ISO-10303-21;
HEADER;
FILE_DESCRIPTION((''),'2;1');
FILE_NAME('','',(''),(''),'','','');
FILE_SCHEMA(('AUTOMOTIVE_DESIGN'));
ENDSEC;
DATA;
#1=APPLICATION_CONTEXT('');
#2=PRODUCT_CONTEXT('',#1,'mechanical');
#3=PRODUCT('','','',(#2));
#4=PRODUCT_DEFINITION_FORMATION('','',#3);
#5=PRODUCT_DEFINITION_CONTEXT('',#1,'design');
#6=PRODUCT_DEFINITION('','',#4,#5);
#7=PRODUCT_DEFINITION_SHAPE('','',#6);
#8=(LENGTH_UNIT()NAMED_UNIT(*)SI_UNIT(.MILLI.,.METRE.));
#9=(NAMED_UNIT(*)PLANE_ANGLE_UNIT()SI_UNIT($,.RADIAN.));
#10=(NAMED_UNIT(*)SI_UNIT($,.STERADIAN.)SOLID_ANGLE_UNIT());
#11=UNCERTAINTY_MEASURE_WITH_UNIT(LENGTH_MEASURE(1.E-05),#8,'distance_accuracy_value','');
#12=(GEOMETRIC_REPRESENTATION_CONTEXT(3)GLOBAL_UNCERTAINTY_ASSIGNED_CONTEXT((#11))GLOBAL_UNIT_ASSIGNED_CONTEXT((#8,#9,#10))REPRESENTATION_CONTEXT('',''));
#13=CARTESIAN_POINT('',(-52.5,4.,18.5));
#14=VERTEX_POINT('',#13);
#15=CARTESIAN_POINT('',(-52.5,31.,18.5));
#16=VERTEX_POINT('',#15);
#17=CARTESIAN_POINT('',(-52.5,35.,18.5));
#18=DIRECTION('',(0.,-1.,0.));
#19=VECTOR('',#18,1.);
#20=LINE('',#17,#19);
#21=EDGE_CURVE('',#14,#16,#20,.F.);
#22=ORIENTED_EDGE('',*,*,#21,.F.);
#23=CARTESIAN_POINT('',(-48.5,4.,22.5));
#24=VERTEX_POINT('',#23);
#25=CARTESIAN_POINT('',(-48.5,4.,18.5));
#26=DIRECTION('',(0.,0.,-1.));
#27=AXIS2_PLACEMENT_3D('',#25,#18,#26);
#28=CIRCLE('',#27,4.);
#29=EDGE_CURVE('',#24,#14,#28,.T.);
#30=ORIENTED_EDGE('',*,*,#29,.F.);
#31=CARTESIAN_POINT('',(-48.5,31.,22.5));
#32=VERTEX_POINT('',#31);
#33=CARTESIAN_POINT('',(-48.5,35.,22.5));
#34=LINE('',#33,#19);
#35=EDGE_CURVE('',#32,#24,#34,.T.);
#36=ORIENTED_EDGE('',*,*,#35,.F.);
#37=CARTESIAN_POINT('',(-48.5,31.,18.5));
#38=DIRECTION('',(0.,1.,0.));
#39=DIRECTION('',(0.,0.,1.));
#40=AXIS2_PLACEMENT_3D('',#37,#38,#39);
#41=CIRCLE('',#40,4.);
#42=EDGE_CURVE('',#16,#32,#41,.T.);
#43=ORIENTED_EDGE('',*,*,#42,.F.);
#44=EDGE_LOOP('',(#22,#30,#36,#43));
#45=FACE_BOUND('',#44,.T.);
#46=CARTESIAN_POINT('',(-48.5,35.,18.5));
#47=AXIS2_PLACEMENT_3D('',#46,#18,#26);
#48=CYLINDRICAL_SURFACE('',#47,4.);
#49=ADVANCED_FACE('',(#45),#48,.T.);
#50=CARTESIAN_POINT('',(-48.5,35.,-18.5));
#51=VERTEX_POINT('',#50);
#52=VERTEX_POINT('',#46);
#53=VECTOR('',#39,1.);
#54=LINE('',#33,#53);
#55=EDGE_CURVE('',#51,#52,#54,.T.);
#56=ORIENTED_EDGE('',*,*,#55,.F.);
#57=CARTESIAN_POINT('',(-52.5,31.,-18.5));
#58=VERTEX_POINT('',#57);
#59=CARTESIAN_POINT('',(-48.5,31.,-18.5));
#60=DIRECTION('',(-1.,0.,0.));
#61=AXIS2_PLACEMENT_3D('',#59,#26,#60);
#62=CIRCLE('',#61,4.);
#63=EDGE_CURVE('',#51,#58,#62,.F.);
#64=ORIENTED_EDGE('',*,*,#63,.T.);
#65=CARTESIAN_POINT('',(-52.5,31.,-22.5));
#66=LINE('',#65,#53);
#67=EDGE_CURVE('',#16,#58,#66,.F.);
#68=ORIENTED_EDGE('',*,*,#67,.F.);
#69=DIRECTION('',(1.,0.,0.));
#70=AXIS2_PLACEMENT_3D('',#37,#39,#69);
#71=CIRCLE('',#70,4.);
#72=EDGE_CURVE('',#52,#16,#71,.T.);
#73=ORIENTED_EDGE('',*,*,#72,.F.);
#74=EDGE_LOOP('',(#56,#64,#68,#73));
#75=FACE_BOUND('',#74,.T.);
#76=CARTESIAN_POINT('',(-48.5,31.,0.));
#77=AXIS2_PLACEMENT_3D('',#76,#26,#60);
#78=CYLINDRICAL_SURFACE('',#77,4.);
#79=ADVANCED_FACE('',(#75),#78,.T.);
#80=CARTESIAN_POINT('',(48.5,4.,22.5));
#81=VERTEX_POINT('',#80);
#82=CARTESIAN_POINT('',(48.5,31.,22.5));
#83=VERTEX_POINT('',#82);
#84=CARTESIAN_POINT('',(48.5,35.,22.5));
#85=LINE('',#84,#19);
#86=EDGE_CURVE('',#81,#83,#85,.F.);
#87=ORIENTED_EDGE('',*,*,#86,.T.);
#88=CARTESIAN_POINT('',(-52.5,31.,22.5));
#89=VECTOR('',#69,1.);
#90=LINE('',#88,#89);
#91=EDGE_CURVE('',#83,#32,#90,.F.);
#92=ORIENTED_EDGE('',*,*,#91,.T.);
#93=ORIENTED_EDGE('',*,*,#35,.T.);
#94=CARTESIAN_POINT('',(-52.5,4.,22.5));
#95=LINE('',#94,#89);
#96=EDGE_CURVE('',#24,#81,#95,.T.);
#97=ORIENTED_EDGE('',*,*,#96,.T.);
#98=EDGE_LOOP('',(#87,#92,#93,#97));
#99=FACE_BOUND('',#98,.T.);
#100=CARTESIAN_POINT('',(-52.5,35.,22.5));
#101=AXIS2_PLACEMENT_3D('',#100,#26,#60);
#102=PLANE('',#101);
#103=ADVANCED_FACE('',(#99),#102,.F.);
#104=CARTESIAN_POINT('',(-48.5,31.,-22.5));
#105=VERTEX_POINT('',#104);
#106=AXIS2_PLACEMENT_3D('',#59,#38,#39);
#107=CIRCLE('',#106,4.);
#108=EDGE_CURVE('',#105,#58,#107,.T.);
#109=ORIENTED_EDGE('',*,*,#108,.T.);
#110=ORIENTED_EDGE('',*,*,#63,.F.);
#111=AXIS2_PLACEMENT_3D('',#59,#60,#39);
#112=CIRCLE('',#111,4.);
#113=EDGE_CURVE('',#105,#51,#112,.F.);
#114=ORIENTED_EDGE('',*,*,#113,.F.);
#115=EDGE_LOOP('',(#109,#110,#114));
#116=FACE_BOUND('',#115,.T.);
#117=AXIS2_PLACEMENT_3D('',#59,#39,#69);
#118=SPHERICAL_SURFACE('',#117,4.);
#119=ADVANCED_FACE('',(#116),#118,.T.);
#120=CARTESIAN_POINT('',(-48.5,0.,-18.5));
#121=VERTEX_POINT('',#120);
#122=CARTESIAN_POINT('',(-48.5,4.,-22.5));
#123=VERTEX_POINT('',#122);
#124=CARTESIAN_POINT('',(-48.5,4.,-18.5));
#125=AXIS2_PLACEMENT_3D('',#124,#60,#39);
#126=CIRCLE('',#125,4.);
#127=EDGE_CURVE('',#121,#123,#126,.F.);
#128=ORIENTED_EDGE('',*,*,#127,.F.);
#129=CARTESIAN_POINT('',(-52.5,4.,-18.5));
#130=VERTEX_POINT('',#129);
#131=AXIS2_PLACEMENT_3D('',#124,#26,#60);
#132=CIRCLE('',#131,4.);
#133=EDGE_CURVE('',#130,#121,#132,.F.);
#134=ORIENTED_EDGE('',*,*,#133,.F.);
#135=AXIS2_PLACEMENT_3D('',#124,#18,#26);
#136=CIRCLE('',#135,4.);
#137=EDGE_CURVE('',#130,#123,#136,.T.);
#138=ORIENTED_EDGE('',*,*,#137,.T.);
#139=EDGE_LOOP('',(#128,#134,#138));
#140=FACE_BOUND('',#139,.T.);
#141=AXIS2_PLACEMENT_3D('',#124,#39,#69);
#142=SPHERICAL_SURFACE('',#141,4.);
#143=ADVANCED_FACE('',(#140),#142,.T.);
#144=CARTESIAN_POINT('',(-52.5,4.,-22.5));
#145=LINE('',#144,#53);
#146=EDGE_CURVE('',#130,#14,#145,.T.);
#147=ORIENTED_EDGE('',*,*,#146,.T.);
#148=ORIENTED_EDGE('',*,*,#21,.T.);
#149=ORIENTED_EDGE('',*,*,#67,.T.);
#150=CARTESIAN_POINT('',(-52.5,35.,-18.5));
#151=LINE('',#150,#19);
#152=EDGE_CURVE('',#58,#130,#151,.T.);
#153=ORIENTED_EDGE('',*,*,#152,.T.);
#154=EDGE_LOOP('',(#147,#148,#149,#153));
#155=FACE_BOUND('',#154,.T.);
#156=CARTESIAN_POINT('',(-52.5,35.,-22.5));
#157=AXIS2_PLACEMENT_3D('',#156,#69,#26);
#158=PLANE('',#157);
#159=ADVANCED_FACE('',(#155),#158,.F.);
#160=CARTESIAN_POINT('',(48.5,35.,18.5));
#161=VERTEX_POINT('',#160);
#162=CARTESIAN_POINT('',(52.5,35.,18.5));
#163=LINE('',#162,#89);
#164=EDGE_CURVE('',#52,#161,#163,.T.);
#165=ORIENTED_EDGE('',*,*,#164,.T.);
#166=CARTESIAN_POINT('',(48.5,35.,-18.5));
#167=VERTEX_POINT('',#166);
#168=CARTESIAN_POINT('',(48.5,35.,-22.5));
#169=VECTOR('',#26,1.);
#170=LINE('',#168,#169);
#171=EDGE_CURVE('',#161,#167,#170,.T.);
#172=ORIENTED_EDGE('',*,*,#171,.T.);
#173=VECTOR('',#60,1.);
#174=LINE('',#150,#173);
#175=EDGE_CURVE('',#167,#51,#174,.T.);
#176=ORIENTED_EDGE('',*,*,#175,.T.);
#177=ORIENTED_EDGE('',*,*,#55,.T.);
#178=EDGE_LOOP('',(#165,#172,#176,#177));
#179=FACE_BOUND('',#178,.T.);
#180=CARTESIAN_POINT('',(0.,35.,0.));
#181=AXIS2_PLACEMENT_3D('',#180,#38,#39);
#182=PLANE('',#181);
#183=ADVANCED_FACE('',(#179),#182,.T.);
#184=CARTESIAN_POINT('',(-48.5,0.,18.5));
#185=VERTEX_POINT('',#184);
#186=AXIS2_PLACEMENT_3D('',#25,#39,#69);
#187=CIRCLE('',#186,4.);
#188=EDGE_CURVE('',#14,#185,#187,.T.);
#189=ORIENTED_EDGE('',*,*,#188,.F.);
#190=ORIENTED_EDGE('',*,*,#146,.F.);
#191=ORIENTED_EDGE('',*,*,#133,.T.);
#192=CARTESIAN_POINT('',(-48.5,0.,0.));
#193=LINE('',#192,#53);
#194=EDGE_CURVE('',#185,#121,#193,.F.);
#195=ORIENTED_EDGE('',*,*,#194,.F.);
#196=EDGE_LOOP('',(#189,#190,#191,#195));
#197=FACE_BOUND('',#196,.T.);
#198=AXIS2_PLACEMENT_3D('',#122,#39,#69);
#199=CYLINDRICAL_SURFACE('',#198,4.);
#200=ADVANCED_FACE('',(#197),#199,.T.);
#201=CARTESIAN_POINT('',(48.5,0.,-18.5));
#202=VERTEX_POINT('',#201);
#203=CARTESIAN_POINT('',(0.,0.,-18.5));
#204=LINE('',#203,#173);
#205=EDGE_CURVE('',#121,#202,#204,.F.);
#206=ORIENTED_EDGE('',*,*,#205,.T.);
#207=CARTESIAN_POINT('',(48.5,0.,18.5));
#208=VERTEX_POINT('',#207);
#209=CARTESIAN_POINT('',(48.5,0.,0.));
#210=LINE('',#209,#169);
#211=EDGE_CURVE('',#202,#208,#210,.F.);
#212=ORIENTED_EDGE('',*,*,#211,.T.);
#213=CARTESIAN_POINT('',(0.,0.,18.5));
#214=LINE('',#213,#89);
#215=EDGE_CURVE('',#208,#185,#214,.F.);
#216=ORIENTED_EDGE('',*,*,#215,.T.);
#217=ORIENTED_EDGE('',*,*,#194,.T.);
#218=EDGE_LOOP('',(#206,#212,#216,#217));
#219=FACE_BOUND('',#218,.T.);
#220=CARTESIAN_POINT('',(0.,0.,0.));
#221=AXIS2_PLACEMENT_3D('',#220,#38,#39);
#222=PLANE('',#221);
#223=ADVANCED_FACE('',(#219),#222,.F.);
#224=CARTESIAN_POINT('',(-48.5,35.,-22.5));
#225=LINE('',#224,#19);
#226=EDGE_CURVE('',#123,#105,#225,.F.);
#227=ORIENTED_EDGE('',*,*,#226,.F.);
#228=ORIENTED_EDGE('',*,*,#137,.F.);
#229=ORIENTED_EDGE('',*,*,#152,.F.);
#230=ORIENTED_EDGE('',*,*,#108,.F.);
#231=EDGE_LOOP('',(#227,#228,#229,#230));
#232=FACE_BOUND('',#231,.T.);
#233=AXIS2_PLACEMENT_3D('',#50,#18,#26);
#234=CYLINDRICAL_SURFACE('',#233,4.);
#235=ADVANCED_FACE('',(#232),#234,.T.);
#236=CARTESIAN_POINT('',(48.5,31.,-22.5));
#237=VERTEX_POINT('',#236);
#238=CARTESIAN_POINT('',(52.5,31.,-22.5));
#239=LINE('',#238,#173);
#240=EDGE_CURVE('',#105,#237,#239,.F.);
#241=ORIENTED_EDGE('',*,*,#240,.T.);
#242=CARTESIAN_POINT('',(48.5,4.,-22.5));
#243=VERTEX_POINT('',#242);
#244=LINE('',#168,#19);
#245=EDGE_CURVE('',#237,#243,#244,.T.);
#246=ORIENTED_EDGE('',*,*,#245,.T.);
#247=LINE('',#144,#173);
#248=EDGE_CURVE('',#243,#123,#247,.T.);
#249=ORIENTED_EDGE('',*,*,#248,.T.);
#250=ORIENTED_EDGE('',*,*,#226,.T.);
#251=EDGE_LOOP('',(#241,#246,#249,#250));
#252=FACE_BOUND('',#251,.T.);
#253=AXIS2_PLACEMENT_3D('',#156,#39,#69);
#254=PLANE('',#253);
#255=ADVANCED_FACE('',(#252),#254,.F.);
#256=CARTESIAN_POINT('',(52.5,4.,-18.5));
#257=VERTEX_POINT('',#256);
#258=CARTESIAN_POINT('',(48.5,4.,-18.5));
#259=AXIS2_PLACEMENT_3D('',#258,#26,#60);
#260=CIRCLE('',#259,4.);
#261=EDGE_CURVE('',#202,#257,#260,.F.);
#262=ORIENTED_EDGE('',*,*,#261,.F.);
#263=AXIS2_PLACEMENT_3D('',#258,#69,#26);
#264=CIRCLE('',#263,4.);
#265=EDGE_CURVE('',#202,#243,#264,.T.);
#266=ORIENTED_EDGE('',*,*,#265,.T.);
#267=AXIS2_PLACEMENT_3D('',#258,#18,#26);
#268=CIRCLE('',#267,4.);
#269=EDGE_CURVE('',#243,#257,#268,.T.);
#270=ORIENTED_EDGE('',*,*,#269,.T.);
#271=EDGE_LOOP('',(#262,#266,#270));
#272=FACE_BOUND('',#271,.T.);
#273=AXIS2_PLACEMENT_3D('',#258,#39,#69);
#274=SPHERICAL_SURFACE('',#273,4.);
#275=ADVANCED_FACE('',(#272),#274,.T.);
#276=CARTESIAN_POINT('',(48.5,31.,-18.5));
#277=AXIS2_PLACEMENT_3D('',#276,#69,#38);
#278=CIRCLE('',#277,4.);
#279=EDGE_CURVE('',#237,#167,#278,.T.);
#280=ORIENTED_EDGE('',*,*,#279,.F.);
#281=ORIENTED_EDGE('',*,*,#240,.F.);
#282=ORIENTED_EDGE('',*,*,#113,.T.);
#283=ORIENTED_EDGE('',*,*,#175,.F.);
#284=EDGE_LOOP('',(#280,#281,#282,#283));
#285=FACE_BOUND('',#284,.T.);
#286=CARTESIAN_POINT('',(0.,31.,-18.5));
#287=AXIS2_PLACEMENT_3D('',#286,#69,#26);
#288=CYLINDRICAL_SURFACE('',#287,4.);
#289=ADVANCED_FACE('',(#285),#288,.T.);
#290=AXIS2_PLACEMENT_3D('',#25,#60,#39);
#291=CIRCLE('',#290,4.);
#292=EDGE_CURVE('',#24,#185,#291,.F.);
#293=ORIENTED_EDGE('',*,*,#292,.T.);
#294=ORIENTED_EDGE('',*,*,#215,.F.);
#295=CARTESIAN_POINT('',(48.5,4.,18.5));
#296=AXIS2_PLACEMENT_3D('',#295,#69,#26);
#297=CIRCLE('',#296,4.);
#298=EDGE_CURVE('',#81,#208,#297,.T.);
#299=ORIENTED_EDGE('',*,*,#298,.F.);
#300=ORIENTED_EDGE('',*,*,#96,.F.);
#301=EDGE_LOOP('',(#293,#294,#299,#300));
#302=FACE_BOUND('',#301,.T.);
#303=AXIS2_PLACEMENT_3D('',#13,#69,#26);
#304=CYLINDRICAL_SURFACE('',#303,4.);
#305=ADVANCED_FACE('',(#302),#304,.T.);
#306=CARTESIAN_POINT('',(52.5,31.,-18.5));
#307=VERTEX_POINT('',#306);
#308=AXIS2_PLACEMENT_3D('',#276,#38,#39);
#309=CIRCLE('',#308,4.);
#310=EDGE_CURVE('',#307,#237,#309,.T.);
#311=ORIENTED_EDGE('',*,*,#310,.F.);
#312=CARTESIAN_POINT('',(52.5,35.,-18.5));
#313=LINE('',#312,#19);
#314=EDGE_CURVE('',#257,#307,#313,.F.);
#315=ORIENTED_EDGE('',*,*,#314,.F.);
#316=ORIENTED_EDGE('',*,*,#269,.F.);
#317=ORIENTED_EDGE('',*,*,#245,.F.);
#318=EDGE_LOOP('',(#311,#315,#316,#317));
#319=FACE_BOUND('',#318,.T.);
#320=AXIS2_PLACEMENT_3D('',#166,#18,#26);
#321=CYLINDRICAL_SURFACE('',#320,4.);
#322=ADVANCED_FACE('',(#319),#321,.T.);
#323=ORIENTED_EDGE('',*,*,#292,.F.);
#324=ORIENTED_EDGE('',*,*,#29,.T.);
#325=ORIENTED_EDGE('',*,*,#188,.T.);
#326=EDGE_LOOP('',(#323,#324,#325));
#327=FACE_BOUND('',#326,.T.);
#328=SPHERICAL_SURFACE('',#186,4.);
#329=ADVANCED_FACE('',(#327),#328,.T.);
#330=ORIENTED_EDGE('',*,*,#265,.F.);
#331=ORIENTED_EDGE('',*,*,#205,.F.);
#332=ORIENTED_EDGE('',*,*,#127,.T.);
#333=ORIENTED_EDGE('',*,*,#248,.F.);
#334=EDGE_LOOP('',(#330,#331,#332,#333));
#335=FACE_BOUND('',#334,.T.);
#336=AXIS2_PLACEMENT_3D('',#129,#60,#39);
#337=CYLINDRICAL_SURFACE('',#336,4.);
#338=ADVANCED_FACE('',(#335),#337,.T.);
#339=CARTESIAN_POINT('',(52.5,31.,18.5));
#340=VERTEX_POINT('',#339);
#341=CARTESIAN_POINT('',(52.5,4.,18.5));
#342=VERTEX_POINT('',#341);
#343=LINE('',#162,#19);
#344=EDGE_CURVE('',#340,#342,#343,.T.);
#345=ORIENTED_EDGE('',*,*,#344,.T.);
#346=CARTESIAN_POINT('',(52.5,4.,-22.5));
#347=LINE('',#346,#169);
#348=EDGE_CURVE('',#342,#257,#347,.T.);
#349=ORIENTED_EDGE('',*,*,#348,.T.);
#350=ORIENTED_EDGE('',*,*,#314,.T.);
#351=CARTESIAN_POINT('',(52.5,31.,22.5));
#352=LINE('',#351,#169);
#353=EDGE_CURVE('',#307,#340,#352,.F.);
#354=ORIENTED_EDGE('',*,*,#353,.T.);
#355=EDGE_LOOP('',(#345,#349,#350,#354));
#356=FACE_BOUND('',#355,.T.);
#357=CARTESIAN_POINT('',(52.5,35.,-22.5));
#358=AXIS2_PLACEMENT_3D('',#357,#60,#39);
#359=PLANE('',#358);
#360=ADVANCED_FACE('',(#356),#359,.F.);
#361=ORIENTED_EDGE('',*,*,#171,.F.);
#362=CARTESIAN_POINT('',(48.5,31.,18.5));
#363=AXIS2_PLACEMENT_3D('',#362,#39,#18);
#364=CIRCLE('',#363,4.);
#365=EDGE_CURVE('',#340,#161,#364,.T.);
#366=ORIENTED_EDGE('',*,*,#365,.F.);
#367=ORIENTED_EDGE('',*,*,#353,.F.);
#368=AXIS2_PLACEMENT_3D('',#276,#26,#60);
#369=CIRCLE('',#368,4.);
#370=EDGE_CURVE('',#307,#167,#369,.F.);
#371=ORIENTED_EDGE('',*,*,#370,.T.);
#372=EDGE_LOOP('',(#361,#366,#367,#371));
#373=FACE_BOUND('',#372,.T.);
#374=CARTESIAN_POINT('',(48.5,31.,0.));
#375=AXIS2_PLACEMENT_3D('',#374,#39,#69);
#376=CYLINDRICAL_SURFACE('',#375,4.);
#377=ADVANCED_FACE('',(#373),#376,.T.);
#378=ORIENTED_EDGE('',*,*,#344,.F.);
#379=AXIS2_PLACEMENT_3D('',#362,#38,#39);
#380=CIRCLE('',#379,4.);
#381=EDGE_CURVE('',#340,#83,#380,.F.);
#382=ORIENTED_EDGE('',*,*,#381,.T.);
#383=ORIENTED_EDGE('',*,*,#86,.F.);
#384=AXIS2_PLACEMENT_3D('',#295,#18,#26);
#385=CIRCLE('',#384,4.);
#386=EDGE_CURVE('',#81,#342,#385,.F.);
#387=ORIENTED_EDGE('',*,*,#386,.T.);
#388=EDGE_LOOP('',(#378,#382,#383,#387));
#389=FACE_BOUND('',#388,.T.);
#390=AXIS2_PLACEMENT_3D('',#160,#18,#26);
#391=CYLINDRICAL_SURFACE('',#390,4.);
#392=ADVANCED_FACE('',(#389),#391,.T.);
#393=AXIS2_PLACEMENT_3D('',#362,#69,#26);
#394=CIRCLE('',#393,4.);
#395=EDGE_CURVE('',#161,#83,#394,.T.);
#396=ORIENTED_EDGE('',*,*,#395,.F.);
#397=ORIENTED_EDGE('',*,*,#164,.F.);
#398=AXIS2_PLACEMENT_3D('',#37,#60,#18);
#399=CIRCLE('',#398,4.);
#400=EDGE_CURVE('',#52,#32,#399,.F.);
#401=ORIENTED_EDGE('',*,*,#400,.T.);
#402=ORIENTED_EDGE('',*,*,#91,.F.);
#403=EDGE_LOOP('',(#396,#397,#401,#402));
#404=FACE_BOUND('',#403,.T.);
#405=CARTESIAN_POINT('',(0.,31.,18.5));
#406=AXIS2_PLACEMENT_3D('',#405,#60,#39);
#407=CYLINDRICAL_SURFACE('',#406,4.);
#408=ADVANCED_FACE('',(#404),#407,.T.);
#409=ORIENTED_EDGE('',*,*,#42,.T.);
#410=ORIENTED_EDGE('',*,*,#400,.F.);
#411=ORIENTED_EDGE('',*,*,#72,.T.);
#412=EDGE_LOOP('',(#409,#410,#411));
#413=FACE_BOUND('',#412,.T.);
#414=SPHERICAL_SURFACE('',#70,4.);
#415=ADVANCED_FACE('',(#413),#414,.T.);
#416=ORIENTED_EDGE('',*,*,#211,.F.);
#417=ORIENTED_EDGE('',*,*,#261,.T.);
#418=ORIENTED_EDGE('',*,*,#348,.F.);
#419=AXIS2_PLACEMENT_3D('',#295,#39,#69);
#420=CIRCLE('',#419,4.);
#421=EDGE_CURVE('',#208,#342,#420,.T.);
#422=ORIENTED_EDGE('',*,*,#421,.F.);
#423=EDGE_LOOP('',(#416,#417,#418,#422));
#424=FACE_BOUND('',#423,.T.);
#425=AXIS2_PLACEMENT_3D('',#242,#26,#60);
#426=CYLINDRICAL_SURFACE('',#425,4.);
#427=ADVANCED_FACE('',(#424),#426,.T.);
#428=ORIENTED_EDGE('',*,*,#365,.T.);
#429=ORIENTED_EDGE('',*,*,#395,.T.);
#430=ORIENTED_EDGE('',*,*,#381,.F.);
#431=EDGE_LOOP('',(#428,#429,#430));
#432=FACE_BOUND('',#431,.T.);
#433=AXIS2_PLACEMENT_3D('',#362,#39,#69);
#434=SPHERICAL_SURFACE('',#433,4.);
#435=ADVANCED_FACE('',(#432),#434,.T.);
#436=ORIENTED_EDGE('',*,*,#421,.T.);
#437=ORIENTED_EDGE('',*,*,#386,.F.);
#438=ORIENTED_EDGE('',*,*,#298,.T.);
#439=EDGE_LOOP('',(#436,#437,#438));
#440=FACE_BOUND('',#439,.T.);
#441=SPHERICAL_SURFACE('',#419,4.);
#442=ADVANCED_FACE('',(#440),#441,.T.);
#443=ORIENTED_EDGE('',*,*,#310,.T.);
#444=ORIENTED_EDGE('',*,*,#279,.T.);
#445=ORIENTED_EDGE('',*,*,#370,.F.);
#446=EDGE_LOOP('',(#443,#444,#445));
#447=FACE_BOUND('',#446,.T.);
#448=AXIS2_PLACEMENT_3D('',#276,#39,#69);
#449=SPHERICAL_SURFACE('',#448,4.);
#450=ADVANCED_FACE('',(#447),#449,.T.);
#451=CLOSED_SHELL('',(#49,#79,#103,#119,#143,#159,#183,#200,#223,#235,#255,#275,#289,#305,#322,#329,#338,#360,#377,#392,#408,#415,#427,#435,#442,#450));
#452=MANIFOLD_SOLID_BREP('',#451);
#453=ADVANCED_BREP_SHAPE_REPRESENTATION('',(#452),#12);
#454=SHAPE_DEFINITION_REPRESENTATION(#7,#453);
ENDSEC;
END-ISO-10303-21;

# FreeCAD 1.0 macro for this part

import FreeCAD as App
import Part
import Sketcher

V = App.Vector


def add_polygon(sketch, points):
    """Adds a closed chain of lines whose ends are joined by coincident constraints."""
    first, n = sketch.GeometryCount, len(points)
    for a, b in zip(points, points[1:] + points[:1]):
        sketch.addGeometry(Part.LineSegment(App.Vector(*a, 0), App.Vector(*b, 0)), False)
    for i in range(n):
        sketch.addConstraint(Sketcher.Constraint("Coincident", first + i, 2, first + (i + 1) % n, 1))

doc = App.newDocument("Part")
body = doc.addObject("PartDesign::Body", "Body")

# Sketch on XZ plane
sketch1 = body.newObject("Sketcher::SketchObject", "Sketch")
sketch1.AttachmentSupport = (doc.getObject("XZ_Plane"), [""])
sketch1.MapMode = "FlatFace"
add_polygon(sketch1, [(-52, -22), (-52, 22), (52, 22), (52, -22)])  # lines 0-3
sketch1.addConstraint(Sketcher.Constraint("Vertical", 0))
sketch1.addConstraint(Sketcher.Constraint("Horizontal", 1))
sketch1.addConstraint(Sketcher.Constraint("Vertical", 2))
sketch1.addConstraint(Sketcher.Constraint("Horizontal", 3))
sketch1.addConstraint(Sketcher.Constraint("Symmetric", 0, 2, 2, 2, -1, 1))
sketch1.addConstraint(Sketcher.Constraint("DistanceX", 1, 1, 1, 2, 105.0))
sketch1.addConstraint(Sketcher.Constraint("DistanceY", 0, 1, 0, 2, 45.0))
pad1 = body.newObject("PartDesign::Pad", "Pad")
pad1.Profile = sketch1
pad1.Length = 35
pad1.Reversed = True
doc.recompute()

fillet = body.newObject("PartDesign::Fillet", "Fillet")
fillet.Base = (pad1, ["Edge1"])
fillet.UseAllEdges = True
fillet.Radius = 4

doc.recompute()
